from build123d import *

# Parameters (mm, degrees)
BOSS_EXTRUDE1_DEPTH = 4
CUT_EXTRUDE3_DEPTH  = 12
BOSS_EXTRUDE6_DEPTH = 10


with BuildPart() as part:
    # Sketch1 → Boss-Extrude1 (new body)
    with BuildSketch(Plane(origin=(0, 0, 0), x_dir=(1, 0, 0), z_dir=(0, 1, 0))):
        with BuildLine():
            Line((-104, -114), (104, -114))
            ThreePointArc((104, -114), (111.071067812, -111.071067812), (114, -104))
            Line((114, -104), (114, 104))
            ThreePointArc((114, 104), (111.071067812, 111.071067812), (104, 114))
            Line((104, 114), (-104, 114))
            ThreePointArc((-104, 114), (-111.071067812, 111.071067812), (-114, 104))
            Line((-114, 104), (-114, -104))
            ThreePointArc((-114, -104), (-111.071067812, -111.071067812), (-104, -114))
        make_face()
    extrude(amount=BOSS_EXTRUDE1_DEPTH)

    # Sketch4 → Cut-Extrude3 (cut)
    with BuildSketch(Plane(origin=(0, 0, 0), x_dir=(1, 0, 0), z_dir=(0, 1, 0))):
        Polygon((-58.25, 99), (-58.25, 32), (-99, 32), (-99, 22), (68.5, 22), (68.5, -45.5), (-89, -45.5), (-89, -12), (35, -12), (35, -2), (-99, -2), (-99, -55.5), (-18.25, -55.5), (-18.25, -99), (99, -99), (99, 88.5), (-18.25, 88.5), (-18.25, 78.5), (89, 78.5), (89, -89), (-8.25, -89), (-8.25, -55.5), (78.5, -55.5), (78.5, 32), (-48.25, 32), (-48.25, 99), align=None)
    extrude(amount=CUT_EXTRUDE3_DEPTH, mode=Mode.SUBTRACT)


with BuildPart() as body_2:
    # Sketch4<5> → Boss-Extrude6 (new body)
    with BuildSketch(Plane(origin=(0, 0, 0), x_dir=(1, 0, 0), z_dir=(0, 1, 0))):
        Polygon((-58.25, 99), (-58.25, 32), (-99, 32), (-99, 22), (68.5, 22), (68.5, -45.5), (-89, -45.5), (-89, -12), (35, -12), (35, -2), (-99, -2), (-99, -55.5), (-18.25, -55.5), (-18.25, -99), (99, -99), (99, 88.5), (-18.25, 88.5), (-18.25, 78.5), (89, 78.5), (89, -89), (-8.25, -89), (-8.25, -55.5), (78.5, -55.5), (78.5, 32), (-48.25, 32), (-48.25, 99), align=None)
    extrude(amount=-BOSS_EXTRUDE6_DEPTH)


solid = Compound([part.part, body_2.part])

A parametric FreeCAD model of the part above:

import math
import FreeCAD as App
import Part
import Sketcher
Q = App.Units.Quantity


def add_polygon(sketch, points):
    """Adds a closed chain of lines whose ends are joined by coincident constraints."""
    first, n = sketch.GeometryCount, len(points)
    for a, b in zip(points, points[1:] + points[:1]):
        sketch.addGeometry(Part.LineSegment(App.Vector(*a, 0), App.Vector(*b, 0)), False)
    for i in range(n):
        sketch.addConstraint(Sketcher.Constraint("Coincident", first + i, 2, first + (i + 1) % n, 1))

doc = App.newDocument("Part")
params = doc.addObject("Spreadsheet::Sheet", "Params")
for row, (alias, value) in enumerate([
    ("sketch1_radius", "10 mm"),
    ("sketch1_width", "208 mm"),
    ("pad1_length", "4 mm"),
    ("sketch2_width", "124 mm"),
    ("sketch2_width2", "134 mm"),
    ("sketch2_width3", "10 mm"),
    ("sketch2_height", "67 mm"),
    ("sketch2_width4", "167.5 mm"),
    ("pocket1_length", "12 mm"),
    ("sketch3_width", "124 mm"),
    ("sketch3_width2", "134 mm"),
    ("sketch3_width3", "10 mm"),
    ("sketch3_height", "67 mm"),
    ("sketch3_width4", "167.5 mm"),
    ("pad2_length", "10 mm"),
], start=1):
    params.set(f"A{row}", alias)
    params.set(f"B{row}", "=" + value)
    params.setAlias(f"B{row}", alias)

body = doc.addObject("PartDesign::Body", "Body")

# Sketch on XZ plane
sketch1 = doc.addObject("Sketcher::SketchObject", "Sketch")
body.addObject(sketch1)
sketch1.AttachmentSupport = (doc.XZ_Plane, [""])
sketch1.MapMode = "FlatFace"
sketch1.addGeometry(Part.LineSegment(App.Vector(-104, 114, 0), App.Vector(104, 114, 0)), False)
sketch1.addGeometry(Part.ArcOfCircle(Part.Circle(App.Vector(104, 104, 0), App.Vector(0, 0, 1), 10), math.radians(0), math.radians(90)), False)
sketch1.addGeometry(Part.LineSegment(App.Vector(114, 104, 0), App.Vector(114, -104, 0)), False)
sketch1.addGeometry(Part.ArcOfCircle(Part.Circle(App.Vector(104, -104, 0), App.Vector(0, 0, 1), 10), math.radians(-90), math.radians(0)), False)
sketch1.addGeometry(Part.LineSegment(App.Vector(104, -114, 0), App.Vector(-104, -114, 0)), False)
sketch1.addGeometry(Part.ArcOfCircle(Part.Circle(App.Vector(-104, -104, 0), App.Vector(0, 0, 1), 10), math.radians(180), math.radians(270)), False)
sketch1.addGeometry(Part.LineSegment(App.Vector(-114, -104, 0), App.Vector(-114, 104, 0)), False)
sketch1.addGeometry(Part.ArcOfCircle(Part.Circle(App.Vector(-104, 104, 0), App.Vector(0, 0, 1), 10), math.radians(90), math.radians(180)), False)
sketch1.addConstraint(Sketcher.Constraint("Tangent", 0, 2, 1, 2))
sketch1.addConstraint(Sketcher.Constraint("Tangent", 1, 1, 2, 1))
sketch1.addConstraint(Sketcher.Constraint("Tangent", 2, 2, 3, 2))
sketch1.addConstraint(Sketcher.Constraint("Tangent", 3, 1, 4, 1))
sketch1.addConstraint(Sketcher.Constraint("Tangent", 4, 2, 5, 2))
sketch1.addConstraint(Sketcher.Constraint("Tangent", 5, 1, 6, 1))
sketch1.addConstraint(Sketcher.Constraint("Tangent", 6, 2, 7, 2))
sketch1.addConstraint(Sketcher.Constraint("Tangent", 7, 1, 0, 1))
sketch1.addConstraint(Sketcher.Constraint("Horizontal", 0))
sketch1.addConstraint(Sketcher.Constraint("Vertical", 2))
sketch1.addConstraint(Sketcher.Constraint("Horizontal", 4))
sketch1.addConstraint(Sketcher.Constraint("Vertical", 6))
sketch1.addConstraint(Sketcher.Constraint("Equal", 1, 3))
sketch1.addConstraint(Sketcher.Constraint("Equal", 3, 5))
sketch1.addConstraint(Sketcher.Constraint("Equal", 5, 7))
sketch1.addConstraint(Sketcher.Constraint("Symmetric", 1, 3, 5, 3, -1, 1))
sketch1.addConstraint(Sketcher.Constraint("Equal", 4, 2))
sketch1.addConstraint(Sketcher.Constraint("Radius", 1, Q("10 mm")))
sketch1.addConstraint(Sketcher.Constraint("DistanceX", 0, 1, 0, 2, Q("208 mm")))
sketch1.setExpression("Constraints[17]", "Params.sketch1_radius")
sketch1.setExpression("Constraints[18]", "Params.sketch1_width")
pad1 = doc.addObject("PartDesign::Pad", "Pad")
body.addObject(pad1)
pad1.Profile = sketch1
pad1.setExpression("Length", "Params.pad1_length")
pad1.Reversed = True

# Sketch on XZ plane
sketch2 = doc.addObject("Sketcher::SketchObject", "Sketch001")
body.addObject(sketch2)
sketch2.AttachmentSupport = (doc.XZ_Plane, [""])
sketch2.MapMode = "FlatFace"
add_polygon(sketch2, [(-58, -99), (-58, -32), (-99, -32), (-99, -22), (68, -22), (68, 46), (-89, 46), (-89, 12), (35, 12), (35, 2), (-99, 2), (-99, 56), (-18, 56), (-18, 99), (99, 99), (99, -88), (-18, -88), (-18, -78), (89, -78), (89, 89), (-8, 89), (-8, 56), (78, 56), (78, -32), (-48, -32), (-48, -99)])  # lines 0-25
sketch2.addConstraint(Sketcher.Constraint("Vertical", 0))
sketch2.addConstraint(Sketcher.Constraint("Horizontal", 1))
sketch2.addConstraint(Sketcher.Constraint("Vertical", 2))
sketch2.addConstraint(Sketcher.Constraint("Horizontal", 3))
sketch2.addConstraint(Sketcher.Constraint("Vertical", 4))
sketch2.addConstraint(Sketcher.Constraint("Horizontal", 5))
sketch2.addConstraint(Sketcher.Constraint("Vertical", 6))
sketch2.addConstraint(Sketcher.Constraint("Horizontal", 7))
sketch2.addConstraint(Sketcher.Constraint("Vertical", 8))
sketch2.addConstraint(Sketcher.Constraint("Horizontal", 9))
sketch2.addConstraint(Sketcher.Constraint("Vertical", 10))
sketch2.addConstraint(Sketcher.Constraint("Horizontal", 11))
sketch2.addConstraint(Sketcher.Constraint("Vertical", 12))
sketch2.addConstraint(Sketcher.Constraint("Horizontal", 13))
sketch2.addConstraint(Sketcher.Constraint("Vertical", 14))
sketch2.addConstraint(Sketcher.Constraint("Horizontal", 15))
sketch2.addConstraint(Sketcher.Constraint("Vertical", 16))
sketch2.addConstraint(Sketcher.Constraint("Horizontal", 17))
sketch2.addConstraint(Sketcher.Constraint("Vertical", 18))
sketch2.addConstraint(Sketcher.Constraint("Horizontal", 19))
sketch2.addConstraint(Sketcher.Constraint("Vertical", 20))
sketch2.addConstraint(Sketcher.Constraint("Horizontal", 21))
sketch2.addConstraint(Sketcher.Constraint("Vertical", 22))
sketch2.addConstraint(Sketcher.Constraint("Horizontal", 23))
sketch2.addConstraint(Sketcher.Constraint("Vertical", 24))
sketch2.addConstraint(Sketcher.Constraint("Horizontal", 25))
sketch2.addConstraint(Sketcher.Constraint("Horizontal", 11, 2, 20, 2))
sketch2.addConstraint(Sketcher.Constraint("Horizontal", 1, 2, 22, 2))
sketch2.addConstraint(Sketcher.Constraint("Vertical", 2, 2, 9, 2))
sketch2.addConstraint(Sketcher.Constraint("Vertical", 12, 2, 15, 2))
sketch2.addConstraint(Sketcher.Constraint("Equal", 25, 2))
sketch2.addConstraint(Sketcher.Constraint("Equal", 2, 8))
sketch2.addConstraint(Sketcher.Constraint("Equal", 8, 16))
sketch2.addConstraint(Sketcher.Constraint("Equal", 3, 18))
sketch2.addConstraint(Sketcher.Constraint("Equal", 6, 20))
sketch2.addConstraint(Sketcher.Constraint("DistanceX", 7, 1, 7, 2, Q("124 mm")))
sketch2.addConstraint(Sketcher.Constraint("DistanceX", 9, 2, 9, 1, Q("134 mm")))
sketch2.addConstraint(Sketcher.Constraint("DistanceX", 25, 2, 25, 1, Q("10 mm")))
sketch2.addConstraint(Sketcher.Constraint("DistanceY", 0, 1, 0, 2, Q("67 mm")))
sketch2.addConstraint(Sketcher.Constraint("DistanceX", 3, 1, 3, 2, Q("167.5 mm")))
sketch2.addConstraint(Sketcher.Constraint("DistanceY", 4, 1, 4, 2, Q("67.5 mm")))
sketch2.addConstraint(Sketcher.Constraint("DistanceY", 6, 2, 6, 1, Q("33.5 mm")))
sketch2.addConstraint(Sketcher.Constraint("DistanceY", 10, 1, 10, 2, Q("53.5 mm")))
sketch2.addConstraint(Sketcher.Constraint("DistanceY", 12, 1, 12, 2, Q("43.5 mm")))
sketch2.addConstraint(Sketcher.Constraint("DistanceY", 0, 2, -1, 1, Q("32 mm")))
sketch2.addConstraint(Sketcher.Constraint("DistanceX", 1, 2, -1, 1, Q("99 mm")))
sketch2.addConstraint(Sketcher.Constraint("DistanceX", -1, 1, 13, 2, Q("99 mm")))
sketch2.addConstraint(Sketcher.Constraint("DistanceX", -1, 1, 17, 2, Q("89 mm")))
sketch2.addConstraint(Sketcher.Constraint("DistanceX", 0, 2, 15, 2, Q("40 mm")))
sketch2.addConstraint(Sketcher.Constraint("DistanceX", 12, 2, 19, 2, Q("10 mm")))
sketch2.addConstraint(Sketcher.Constraint("DistanceX", 4, 2, 21, 2, Q("10 mm")))
sketch2.addConstraint(Sketcher.Constraint("DistanceX", 1, 2, 1, 1, Q("40.75 mm")))
sketch2.setExpression("Constraints[61]", "Params.sketch2_width")
sketch2.setExpression("Constraints[62]", "Params.sketch2_width2")
sketch2.setExpression("Constraints[63]", "Params.sketch2_width3")
sketch2.setExpression("Constraints[64]", "Params.sketch2_height")
sketch2.setExpression("Constraints[65]", "Params.sketch2_width4")
pocket1 = doc.addObject("PartDesign::Pocket", "Pocket")
body.addObject(pocket1)
pocket1.Profile = sketch2
pocket1.setExpression("Length", "Params.pocket1_length")
body2 = doc.addObject("PartDesign::Body", "Body001")

# Sketch on XZ plane
sketch3 = doc.addObject("Sketcher::SketchObject", "Sketch002")
body2.addObject(sketch3)
sketch3.AttachmentSupport = (doc.getObject("XZ_Plane001"), [""])
sketch3.MapMode = "FlatFace"
add_polygon(sketch3, [(-58, -99), (-58, -32), (-99, -32), (-99, -22), (68, -22), (68, 46), (-89, 46), (-89, 12), (35, 12), (35, 2), (-99, 2), (-99, 56), (-18, 56), (-18, 99), (99, 99), (99, -88), (-18, -88), (-18, -78), (89, -78), (89, 89), (-8, 89), (-8, 56), (78, 56), (78, -32), (-48, -32), (-48, -99)])  # lines 0-25
sketch3.addConstraint(Sketcher.Constraint("Vertical", 0))
sketch3.addConstraint(Sketcher.Constraint("Horizontal", 1))
sketch3.addConstraint(Sketcher.Constraint("Vertical", 2))
sketch3.addConstraint(Sketcher.Constraint("Horizontal", 3))
sketch3.addConstraint(Sketcher.Constraint("Vertical", 4))
sketch3.addConstraint(Sketcher.Constraint("Horizontal", 5))
sketch3.addConstraint(Sketcher.Constraint("Vertical", 6))
sketch3.addConstraint(Sketcher.Constraint("Horizontal", 7))
sketch3.addConstraint(Sketcher.Constraint("Vertical", 8))
sketch3.addConstraint(Sketcher.Constraint("Horizontal", 9))
sketch3.addConstraint(Sketcher.Constraint("Vertical", 10))
sketch3.addConstraint(Sketcher.Constraint("Horizontal", 11))
sketch3.addConstraint(Sketcher.Constraint("Vertical", 12))
sketch3.addConstraint(Sketcher.Constraint("Horizontal", 13))
sketch3.addConstraint(Sketcher.Constraint("Vertical", 14))
sketch3.addConstraint(Sketcher.Constraint("Horizontal", 15))
sketch3.addConstraint(Sketcher.Constraint("Vertical", 16))
sketch3.addConstraint(Sketcher.Constraint("Horizontal", 17))
sketch3.addConstraint(Sketcher.Constraint("Vertical", 18))
sketch3.addConstraint(Sketcher.Constraint("Horizontal", 19))
sketch3.addConstraint(Sketcher.Constraint("Vertical", 20))
sketch3.addConstraint(Sketcher.Constraint("Horizontal", 21))
sketch3.addConstraint(Sketcher.Constraint("Vertical", 22))
sketch3.addConstraint(Sketcher.Constraint("Horizontal", 23))
sketch3.addConstraint(Sketcher.Constraint("Vertical", 24))
sketch3.addConstraint(Sketcher.Constraint("Horizontal", 25))
sketch3.addConstraint(Sketcher.Constraint("Horizontal", 11, 2, 20, 2))
sketch3.addConstraint(Sketcher.Constraint("Horizontal", 1, 2, 22, 2))
sketch3.addConstraint(Sketcher.Constraint("Vertical", 2, 2, 9, 2))
sketch3.addConstraint(Sketcher.Constraint("Vertical", 12, 2, 15, 2))
sketch3.addConstraint(Sketcher.Constraint("Equal", 25, 2))
sketch3.addConstraint(Sketcher.Constraint("Equal", 2, 8))
sketch3.addConstraint(Sketcher.Constraint("Equal", 8, 16))
sketch3.addConstraint(Sketcher.Constraint("Equal", 3, 18))
sketch3.addConstraint(Sketcher.Constraint("Equal", 6, 20))
sketch3.addConstraint(Sketcher.Constraint("DistanceX", 7, 1, 7, 2, Q("124 mm")))
sketch3.addConstraint(Sketcher.Constraint("DistanceX", 9, 2, 9, 1, Q("134 mm")))
sketch3.addConstraint(Sketcher.Constraint("DistanceX", 25, 2, 25, 1, Q("10 mm")))
sketch3.addConstraint(Sketcher.Constraint("DistanceY", 0, 1, 0, 2, Q("67 mm")))
sketch3.addConstraint(Sketcher.Constraint("DistanceX", 3, 1, 3, 2, Q("167.5 mm")))
sketch3.addConstraint(Sketcher.Constraint("DistanceY", 4, 1, 4, 2, Q("67.5 mm")))
sketch3.addConstraint(Sketcher.Constraint("DistanceY", 6, 2, 6, 1, Q("33.5 mm")))
sketch3.addConstraint(Sketcher.Constraint("DistanceY", 10, 1, 10, 2, Q("53.5 mm")))
sketch3.addConstraint(Sketcher.Constraint("DistanceY", 12, 1, 12, 2, Q("43.5 mm")))
sketch3.addConstraint(Sketcher.Constraint("DistanceY", 0, 2, -1, 1, Q("32 mm")))
sketch3.addConstraint(Sketcher.Constraint("DistanceX", 1, 2, -1, 1, Q("99 mm")))
sketch3.addConstraint(Sketcher.Constraint("DistanceX", -1, 1, 13, 2, Q("99 mm")))
sketch3.addConstraint(Sketcher.Constraint("DistanceX", -1, 1, 17, 2, Q("89 mm")))
sketch3.addConstraint(Sketcher.Constraint("DistanceX", 0, 2, 15, 2, Q("40 mm")))
sketch3.addConstraint(Sketcher.Constraint("DistanceX", 12, 2, 19, 2, Q("10 mm")))
sketch3.addConstraint(Sketcher.Constraint("DistanceX", 4, 2, 21, 2, Q("10 mm")))
sketch3.addConstraint(Sketcher.Constraint("DistanceX", 1, 2, 1, 1, Q("40.75 mm")))
sketch3.setExpression("Constraints[61]", "Params.sketch3_width")
sketch3.setExpression("Constraints[62]", "Params.sketch3_width2")
sketch3.setExpression("Constraints[63]", "Params.sketch3_width3")
sketch3.setExpression("Constraints[64]", "Params.sketch3_height")
sketch3.setExpression("Constraints[65]", "Params.sketch3_width4")
pad2 = doc.addObject("PartDesign::Pad", "Pad001")
body2.addObject(pad2)
pad2.Profile = sketch3
pad2.setExpression("Length", "Params.pad2_length")

doc.recompute()
